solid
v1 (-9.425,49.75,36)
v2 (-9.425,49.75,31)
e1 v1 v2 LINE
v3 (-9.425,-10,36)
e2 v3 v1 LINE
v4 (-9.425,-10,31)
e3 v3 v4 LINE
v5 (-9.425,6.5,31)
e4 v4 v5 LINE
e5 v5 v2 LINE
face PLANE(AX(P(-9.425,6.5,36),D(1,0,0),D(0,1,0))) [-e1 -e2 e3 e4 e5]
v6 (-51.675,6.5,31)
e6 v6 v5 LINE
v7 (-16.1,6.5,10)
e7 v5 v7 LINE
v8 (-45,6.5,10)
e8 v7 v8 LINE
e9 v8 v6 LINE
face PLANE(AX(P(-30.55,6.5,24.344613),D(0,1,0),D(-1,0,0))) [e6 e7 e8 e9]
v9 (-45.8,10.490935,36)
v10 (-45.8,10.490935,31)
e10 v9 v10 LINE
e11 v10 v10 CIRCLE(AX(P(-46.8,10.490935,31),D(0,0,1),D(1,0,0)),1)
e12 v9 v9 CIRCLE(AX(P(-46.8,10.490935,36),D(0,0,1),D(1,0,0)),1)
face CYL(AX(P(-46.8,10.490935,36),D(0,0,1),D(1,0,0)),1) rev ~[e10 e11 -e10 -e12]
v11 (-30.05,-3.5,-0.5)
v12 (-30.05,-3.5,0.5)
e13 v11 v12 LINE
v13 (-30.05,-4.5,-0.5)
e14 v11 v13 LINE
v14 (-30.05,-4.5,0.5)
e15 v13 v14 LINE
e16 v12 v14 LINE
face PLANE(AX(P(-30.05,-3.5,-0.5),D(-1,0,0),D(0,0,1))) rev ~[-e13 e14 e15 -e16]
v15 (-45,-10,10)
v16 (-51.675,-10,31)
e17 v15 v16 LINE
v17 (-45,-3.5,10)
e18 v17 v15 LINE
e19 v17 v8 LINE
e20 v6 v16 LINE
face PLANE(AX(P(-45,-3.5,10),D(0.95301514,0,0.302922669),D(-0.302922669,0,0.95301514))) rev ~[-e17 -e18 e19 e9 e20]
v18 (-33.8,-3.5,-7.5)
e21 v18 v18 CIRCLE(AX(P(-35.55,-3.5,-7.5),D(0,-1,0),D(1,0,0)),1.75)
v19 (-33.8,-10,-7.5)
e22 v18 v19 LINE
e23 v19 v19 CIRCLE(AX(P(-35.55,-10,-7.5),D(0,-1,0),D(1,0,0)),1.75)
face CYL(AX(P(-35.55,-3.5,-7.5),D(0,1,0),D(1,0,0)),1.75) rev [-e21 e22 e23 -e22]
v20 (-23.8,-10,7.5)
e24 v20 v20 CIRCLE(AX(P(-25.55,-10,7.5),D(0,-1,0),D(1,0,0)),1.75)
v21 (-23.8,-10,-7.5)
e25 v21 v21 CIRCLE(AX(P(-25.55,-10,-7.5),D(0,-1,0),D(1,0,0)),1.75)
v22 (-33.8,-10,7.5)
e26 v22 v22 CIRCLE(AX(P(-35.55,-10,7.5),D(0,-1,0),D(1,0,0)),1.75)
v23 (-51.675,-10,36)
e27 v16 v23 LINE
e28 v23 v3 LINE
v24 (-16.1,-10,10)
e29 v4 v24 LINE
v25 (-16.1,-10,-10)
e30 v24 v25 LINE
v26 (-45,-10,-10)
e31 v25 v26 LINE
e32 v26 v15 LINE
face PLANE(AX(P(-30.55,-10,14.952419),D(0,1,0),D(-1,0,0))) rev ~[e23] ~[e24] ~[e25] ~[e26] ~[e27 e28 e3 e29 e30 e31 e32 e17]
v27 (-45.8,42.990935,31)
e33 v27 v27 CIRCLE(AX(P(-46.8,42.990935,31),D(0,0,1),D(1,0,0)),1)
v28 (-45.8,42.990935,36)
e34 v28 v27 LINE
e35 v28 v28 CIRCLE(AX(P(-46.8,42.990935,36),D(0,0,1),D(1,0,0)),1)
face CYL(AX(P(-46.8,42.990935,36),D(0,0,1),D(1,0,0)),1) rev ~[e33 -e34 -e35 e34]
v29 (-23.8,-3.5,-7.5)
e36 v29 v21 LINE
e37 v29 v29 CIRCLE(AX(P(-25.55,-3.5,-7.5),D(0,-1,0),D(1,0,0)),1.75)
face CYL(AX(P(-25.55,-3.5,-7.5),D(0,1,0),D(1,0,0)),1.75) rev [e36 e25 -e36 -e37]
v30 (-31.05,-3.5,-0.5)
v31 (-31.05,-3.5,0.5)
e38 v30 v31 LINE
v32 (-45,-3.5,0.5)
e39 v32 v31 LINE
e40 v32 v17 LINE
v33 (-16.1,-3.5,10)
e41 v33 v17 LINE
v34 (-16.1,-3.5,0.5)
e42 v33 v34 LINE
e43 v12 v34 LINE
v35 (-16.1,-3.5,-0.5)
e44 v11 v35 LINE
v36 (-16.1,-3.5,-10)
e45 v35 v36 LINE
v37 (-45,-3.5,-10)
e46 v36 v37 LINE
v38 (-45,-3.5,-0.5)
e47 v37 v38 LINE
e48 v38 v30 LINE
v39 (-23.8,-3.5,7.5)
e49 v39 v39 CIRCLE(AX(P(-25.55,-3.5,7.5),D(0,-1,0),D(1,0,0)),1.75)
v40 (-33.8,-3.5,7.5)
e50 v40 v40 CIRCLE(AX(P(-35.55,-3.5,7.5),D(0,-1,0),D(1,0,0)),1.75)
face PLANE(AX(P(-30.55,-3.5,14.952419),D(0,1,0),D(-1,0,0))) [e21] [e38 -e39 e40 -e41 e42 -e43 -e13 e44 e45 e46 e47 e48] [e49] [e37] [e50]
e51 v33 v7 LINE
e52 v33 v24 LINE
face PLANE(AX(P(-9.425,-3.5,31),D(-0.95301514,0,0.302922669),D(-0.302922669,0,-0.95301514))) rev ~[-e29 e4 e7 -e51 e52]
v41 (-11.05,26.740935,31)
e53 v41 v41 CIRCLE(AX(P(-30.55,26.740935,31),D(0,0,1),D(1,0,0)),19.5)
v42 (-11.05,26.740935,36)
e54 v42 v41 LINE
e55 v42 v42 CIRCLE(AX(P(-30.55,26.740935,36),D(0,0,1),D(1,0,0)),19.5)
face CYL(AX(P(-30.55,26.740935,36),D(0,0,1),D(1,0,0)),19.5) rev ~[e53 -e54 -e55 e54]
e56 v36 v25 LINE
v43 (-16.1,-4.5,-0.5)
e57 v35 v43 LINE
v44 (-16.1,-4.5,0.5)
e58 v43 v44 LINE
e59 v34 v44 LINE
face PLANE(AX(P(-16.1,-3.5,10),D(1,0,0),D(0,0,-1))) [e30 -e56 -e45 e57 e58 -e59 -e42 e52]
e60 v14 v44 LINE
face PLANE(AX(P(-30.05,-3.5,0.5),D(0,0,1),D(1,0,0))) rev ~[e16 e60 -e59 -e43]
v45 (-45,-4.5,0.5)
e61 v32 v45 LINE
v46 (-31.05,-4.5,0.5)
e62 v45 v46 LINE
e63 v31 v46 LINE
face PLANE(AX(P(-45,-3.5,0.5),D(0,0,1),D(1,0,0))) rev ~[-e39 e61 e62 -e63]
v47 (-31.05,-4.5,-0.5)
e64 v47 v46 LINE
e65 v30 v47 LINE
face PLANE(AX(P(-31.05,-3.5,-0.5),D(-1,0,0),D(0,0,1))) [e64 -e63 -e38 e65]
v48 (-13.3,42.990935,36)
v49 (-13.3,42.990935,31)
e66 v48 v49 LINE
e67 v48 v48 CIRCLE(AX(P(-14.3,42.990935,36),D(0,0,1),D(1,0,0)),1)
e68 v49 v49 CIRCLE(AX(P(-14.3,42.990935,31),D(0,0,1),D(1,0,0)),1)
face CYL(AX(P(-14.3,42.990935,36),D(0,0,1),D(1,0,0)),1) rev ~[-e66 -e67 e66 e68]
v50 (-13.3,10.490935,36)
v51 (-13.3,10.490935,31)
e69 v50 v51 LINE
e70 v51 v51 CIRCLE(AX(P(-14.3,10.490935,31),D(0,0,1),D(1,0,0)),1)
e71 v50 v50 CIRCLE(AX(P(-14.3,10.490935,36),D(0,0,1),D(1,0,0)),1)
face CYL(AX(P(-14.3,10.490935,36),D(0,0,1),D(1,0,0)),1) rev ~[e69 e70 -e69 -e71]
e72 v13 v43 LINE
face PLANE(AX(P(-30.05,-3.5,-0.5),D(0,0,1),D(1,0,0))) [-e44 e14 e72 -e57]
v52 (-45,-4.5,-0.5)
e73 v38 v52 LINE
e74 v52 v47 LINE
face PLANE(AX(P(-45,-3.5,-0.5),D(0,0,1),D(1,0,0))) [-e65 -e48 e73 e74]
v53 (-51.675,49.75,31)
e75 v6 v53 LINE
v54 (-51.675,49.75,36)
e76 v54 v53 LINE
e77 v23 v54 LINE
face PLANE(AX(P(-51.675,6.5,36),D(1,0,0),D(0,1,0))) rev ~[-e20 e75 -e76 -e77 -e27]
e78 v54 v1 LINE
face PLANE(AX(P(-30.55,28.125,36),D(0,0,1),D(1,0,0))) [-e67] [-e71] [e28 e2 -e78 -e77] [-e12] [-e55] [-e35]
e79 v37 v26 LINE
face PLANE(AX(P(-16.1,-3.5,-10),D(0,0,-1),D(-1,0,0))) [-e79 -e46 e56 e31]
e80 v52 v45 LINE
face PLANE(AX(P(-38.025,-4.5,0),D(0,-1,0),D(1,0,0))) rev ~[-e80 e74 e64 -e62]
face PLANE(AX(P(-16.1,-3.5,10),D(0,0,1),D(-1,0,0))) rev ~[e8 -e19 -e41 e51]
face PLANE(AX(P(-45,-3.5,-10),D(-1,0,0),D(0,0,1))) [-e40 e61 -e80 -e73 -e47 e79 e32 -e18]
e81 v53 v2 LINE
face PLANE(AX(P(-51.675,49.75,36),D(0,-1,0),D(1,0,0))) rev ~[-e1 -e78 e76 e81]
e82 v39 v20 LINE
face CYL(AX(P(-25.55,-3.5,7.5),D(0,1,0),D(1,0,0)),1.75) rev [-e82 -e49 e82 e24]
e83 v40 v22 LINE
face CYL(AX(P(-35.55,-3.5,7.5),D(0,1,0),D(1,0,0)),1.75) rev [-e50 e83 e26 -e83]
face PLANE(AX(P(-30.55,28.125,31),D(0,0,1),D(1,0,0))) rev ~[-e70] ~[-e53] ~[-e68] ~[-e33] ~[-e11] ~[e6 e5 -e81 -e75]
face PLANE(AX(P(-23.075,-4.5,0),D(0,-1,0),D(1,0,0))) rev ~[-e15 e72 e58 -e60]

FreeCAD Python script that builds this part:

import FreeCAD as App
import Part
import Sketcher
Q = App.Units.Quantity


def add_polygon(sketch, points):
    """Adds a closed chain of lines whose ends are joined by coincident constraints."""
    first, n = sketch.GeometryCount, len(points)
    for a, b in zip(points, points[1:] + points[:1]):
        sketch.addGeometry(Part.LineSegment(App.Vector(*a, 0), App.Vector(*b, 0)), False)
    for i in range(n):
        sketch.addConstraint(Sketcher.Constraint("Coincident", first + i, 2, first + (i + 1) % n, 1))

doc = App.newDocument("Part")
body = doc.addObject("PartDesign::Body", "Body")

# Sketch on XZ plane
sketch1 = doc.addObject("Sketcher::SketchObject", "Sketch")
body.addObject(sketch1)
sketch1.AttachmentSupport = (doc.XZ_Plane, [""])
sketch1.MapMode = "FlatFace"
add_polygon(sketch1, [(14.4, -10), (14.4, 10), (21.1, 31), (21.1, 36), (-21.1, 36), (-21.1, 31), (-14.4, 10), (-14.4, -10)])  # lines 0-7
sketch1.addGeometry(Part.Circle(App.Vector(5, -7.5, 0), App.Vector(0, 0, 1), 1.8), False)  # 8
sketch1.addGeometry(Part.Circle(App.Vector(-5, -7.5, 0), App.Vector(0, 0, 1), 1.8), False)  # 9
sketch1.addGeometry(Part.Circle(App.Vector(5, 7.5, 0), App.Vector(0, 0, 1), 1.8), False)  # 10
sketch1.addGeometry(Part.Circle(App.Vector(-5, 7.5, 0), App.Vector(0, 0, 1), 1.8), False)  # 11
sketch1.addConstraint([
    Sketcher.Constraint("Vertical", 0),
    Sketcher.Constraint("Vertical", 2),
    Sketcher.Constraint("Horizontal", 3),
    Sketcher.Constraint("Vertical", 4),
    Sketcher.Constraint("Vertical", 6),
    Sketcher.Constraint("Horizontal", 7),
    Sketcher.Constraint("Equal", 8, 9),
    Sketcher.Constraint("Equal", 9, 10),
    Sketcher.Constraint("Equal", 10, 11),
    Sketcher.Constraint("Symmetric", 9, 3, 10, 3, -1, 1),
    Sketcher.Constraint("Symmetric", 8, 3, 11, 3, -1, 1),
    Sketcher.Constraint("Symmetric", 0, 2, 6, 2, -1, 1),
    Sketcher.Constraint("Symmetric", 8, 3, 9, 3, -2),
    Sketcher.Constraint("Symmetric", 1, 2, 4, 2, -2),
    Sketcher.Constraint("Horizontal", 0, 2, 5, 2),
    Sketcher.Constraint("Diameter", 8, Q("3.5 mm")),
    Sketcher.Constraint("DistanceY", 0, 1, 0, 2, Q("20 mm")),
    Sketcher.Constraint("DistanceY", 2, 1, 2, 2, Q("5 mm")),
    Sketcher.Constraint("DistanceX", 7, 1, 7, 2, Q("28.9 mm")),
    Sketcher.Constraint("DistanceX", -1, 1, 8, 3, Q("5 mm")),
    Sketcher.Constraint("DistanceY", -1, 1, 1, 2, Q("31 mm")),
    Sketcher.Constraint("DistanceY", 8, 3, 10, 3, Q("15 mm")),
    Sketcher.Constraint("DistanceX", 3, 2, 3, 1, Q("42.25 mm")),
])
pad1 = doc.addObject("PartDesign::Pad", "Pad")
body.addObject(pad1)
pad1.Profile = sketch1
pad1.Length = 6.5

# Sketch on XZ plane
sketch2 = doc.addObject("Sketcher::SketchObject", "Sketch001")
body.addObject(sketch2)
sketch2.AttachmentSupport = (doc.XZ_Plane, [""])
sketch2.MapMode = "FlatFace"
add_polygon(sketch2, [(21, 36), (-21, 36), (-21, 31), (-14, 10), (14, 10), (21, 31)])  # lines 0-5
sketch2.addConstraint([
    Sketcher.Constraint("Horizontal", 0),
    Sketcher.Constraint("Vertical", 1),
    Sketcher.Constraint("Horizontal", 3),
    Sketcher.Constraint("Vertical", 5),
    Sketcher.Constraint("Symmetric", 1, 2, 4, 2, -2),
    Sketcher.Constraint("Equal", 2, 4),
    Sketcher.Constraint("DistanceY", 1, 2, 1, 1, Q("5 mm")),
    Sketcher.Constraint("DistanceX", 3, 1, 3, 2, Q("28.9 mm")),
    Sketcher.Constraint("DistanceY", -1, 1, 0, 2, Q("36 mm")),
    Sketcher.Constraint("DistanceY", -1, 1, 2, 2, Q("10 mm")),
    Sketcher.Constraint("DistanceX", 0, 2, 0, 1, Q("42.25 mm")),
])
pad2 = doc.addObject("PartDesign::Pad", "Pad001")
body.addObject(pad2)
pad2.Profile = sketch2
pad2.Length = 10
pad2.Reversed = True

# Sketch on YZ plane
sketch3 = doc.addObject("Sketcher::SketchObject", "Sketch002")
body.addObject(sketch3)
sketch3.AttachmentSupport = (doc.YZ_Plane, [""])
sketch3.MapMode = "FlatFace"
sketch3.addGeometry(Part.Circle(App.Vector(5, -14.5, 0), App.Vector(0, 0, 1), 3), False)
sketch3.addConstraint([
    Sketcher.Constraint("Diameter", 0, Q("6 mm")),
    Sketcher.Constraint("DistanceX", -1, 1, 0, 3, Q("5 mm")),
    Sketcher.Constraint("DistanceY", 0, 3, -1, 1, Q("14.5 mm")),
])
pocket1 = doc.addObject("PartDesign::Pocket", "Pocket")
body.addObject(pocket1)
pocket1.Profile = sketch3
pocket1.Length = 28.9
pocket1.Midplane = True

# Sketch on XY plane
sketch4 = doc.addObject("Sketcher::SketchObject", "Sketch003")
body.addObject(sketch4)
sketch4.AttachmentSupport = (doc.XY_Plane, [""])
sketch4.MapMode = "FlatFace"
sketch4.AttachmentOffset = App.Placement(App.Vector(0, 0, 36), App.Rotation())
add_polygon(sketch4, [(-21.1, 53.2), (-21.1, 10), (21.1, 10), (21.1, 53.2)])  # lines 0-3
sketch4.addGeometry(Part.Circle(App.Vector(-16.2, 14, 0), App.Vector(0, 0, 1), 1), False)  # 4
sketch4.addGeometry(Part.Circle(App.Vector(16.2, 14, 0), App.Vector(0, 0, 1), 1), False)  # 5
sketch4.addGeometry(Part.Circle(App.Vector(-16.2, 46.5, 0), App.Vector(0, 0, 1), 1), False)  # 6
sketch4.addGeometry(Part.Circle(App.Vector(0, 30.2, 0), App.Vector(0, 0, 1), 19.5), False)  # 7
sketch4.addGeometry(Part.Circle(App.Vector(16.2, 46.5, 0), App.Vector(0, 0, 1), 1), False)  # 8
sketch4.addConstraint([
    Sketcher.Constraint("Vertical", 0),
    Sketcher.Constraint("Horizontal", 1),
    Sketcher.Constraint("Vertical", 2),
    Sketcher.Constraint("Horizontal", 3),
    Sketcher.Constraint("Equal", 4, 5),
    Sketcher.Constraint("Equal", 5, 6),
    Sketcher.Constraint("Equal", 6, 8),
    Sketcher.Constraint("Symmetric", 4, 3, 5, 3, -2),
    Sketcher.Constraint("Symmetric", 6, 3, 8, 3, -2),
    Sketcher.Constraint("PointOnObject", 7, 3, -2),
    Sketcher.Constraint("Vertical", 4, 3, 6, 3),
    Sketcher.Constraint("Diameter", 4, Q("2 mm")),
    Sketcher.Constraint("Diameter", 7, Q("39 mm")),
    Sketcher.Constraint("DistanceY", -1, 1, 0, 2, Q("10 mm")),
    Sketcher.Constraint("DistanceX", 1, 1, 1, 2, Q("42.25 mm")),
    Sketcher.Constraint("DistanceY", 0, 2, 0, 1, Q("43.25 mm")),
    Sketcher.Constraint("DistanceX", 4, 3, 5, 3, Q("32.5 mm")),
    Sketcher.Constraint("DistanceY", 4, 3, 6, 3, Q("32.5 mm")),
    Sketcher.Constraint("DistanceY", 4, 3, 7, 3, Q("16.25 mm")),
    Sketcher.Constraint("DistanceX", 0, 2, -1, 1, Q("21.125 mm")),
    Sketcher.Constraint("DistanceY", -1, 1, 4, 3, Q("13.990935 mm")),
])
pad3 = doc.addObject("PartDesign::Pad", "Pad002")
body.addObject(pad3)
pad3.Profile = sketch4
pad3.Length = 5
pad3.Reversed = True

# Sketch on XZ plane
sketch5 = doc.addObject("Sketcher::SketchObject", "Sketch004")
body.addObject(sketch5)
sketch5.AttachmentSupport = (doc.XZ_Plane, [""])
sketch5.MapMode = "FlatFace"
add_polygon(sketch5, [(-14.4, 0.5), (-14.4, -0.5), (-0.5, -0.5), (-0.5, 0.5)])  # lines 0-3
add_polygon(sketch5, [(0.5, 0.5), (0.5, -0.5), (14.4, -0.5), (14.4, 0.5)])  # lines 4-7
sketch5.addConstraint([
    Sketcher.Constraint("Vertical", 0),
    Sketcher.Constraint("Horizontal", 1),
    Sketcher.Constraint("Vertical", 2),
    Sketcher.Constraint("Horizontal", 3),
    Sketcher.Constraint("Vertical", 4),
    Sketcher.Constraint("Horizontal", 5),
    Sketcher.Constraint("Vertical", 6),
    Sketcher.Constraint("Horizontal", 7),
    Sketcher.Constraint("Symmetric", 2, 2, 4, 2, -1, 1),
    Sketcher.Constraint("Symmetric", 0, 2, 6, 2, -1, 1),
    Sketcher.Constraint("Horizontal", 1, 2, 4, 2),
    Sketcher.Constraint("DistanceY", 0, 2, 0, 1, Q("1 mm")),
    Sketcher.Constraint("DistanceX", 1, 2, 4, 2, Q("1 mm")),
    Sketcher.Constraint("DistanceX", 1, 1, 1, 2, Q("13.95 mm")),
])
pocket2 = doc.addObject("PartDesign::Pocket", "Pocket001")
body.addObject(pocket2)
pocket2.Profile = sketch5
pocket2.Length = 1
pocket2.Reversed = True
body2 = doc.addObject("PartDesign::Body", "Body001")
doc.recompute()

body.Placement = App.Placement(App.Vector(-30.55, -3.5, 0), App.Rotation(App.Vector(0, 0, 1), 0))
boolean = doc.addObject("PartDesign::Boolean", "Boolean")
body2.addObject(boolean)
boolean.Type = "Fuse"
boolean.addObjects([body])

doc.recompute()
